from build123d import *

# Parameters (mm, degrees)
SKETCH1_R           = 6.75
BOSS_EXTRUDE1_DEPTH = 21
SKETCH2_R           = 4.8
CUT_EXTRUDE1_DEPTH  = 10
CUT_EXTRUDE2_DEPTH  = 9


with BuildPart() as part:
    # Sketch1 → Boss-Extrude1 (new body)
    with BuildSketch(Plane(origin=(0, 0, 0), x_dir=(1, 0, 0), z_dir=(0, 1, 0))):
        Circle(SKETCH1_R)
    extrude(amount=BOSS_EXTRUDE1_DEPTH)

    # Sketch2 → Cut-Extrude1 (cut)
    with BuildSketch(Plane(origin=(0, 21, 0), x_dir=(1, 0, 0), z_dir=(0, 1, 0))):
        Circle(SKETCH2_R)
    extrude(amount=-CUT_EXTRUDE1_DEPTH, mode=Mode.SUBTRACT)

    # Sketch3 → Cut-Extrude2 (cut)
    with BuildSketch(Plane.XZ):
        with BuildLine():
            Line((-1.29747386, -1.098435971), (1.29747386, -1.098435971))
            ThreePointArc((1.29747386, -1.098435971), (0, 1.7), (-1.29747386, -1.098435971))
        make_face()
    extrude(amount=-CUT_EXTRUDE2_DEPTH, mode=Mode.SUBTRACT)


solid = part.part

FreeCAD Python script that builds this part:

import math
import FreeCAD as App
import Part
import Sketcher

V = App.Vector
Q = App.Units.Quantity

doc = App.newDocument("Part")
body = doc.addObject("PartDesign::Body", "Body")

sketch1 = body.newObject("Sketcher::SketchObject", "Sketch")
sketch1.AttachmentSupport = (doc.getObject("XZ_Plane"), [""])
sketch1.MapMode = "FlatFace"
sketch1.addGeometry(Part.Circle(V(0, 0, 0), V(0, 0, 1), 6.75), False)
sketch1.addConstraint([
    Sketcher.Constraint("Coincident", 0, 3, -1, 1),
    Sketcher.Constraint("Diameter", 0, Q("13.5 mm")),
])
pad1 = body.newObject("PartDesign::Pad", "Pad")
pad1.Profile = sketch1
pad1.Length = 21
pad1.Reversed = True

sketch2 = body.newObject("Sketcher::SketchObject", "Sketch001")
sketch2.AttachmentSupport = (doc.getObject("XZ_Plane"), [""])
sketch2.MapMode = "FlatFace"
sketch2.AttachmentOffset = App.Placement(V(0, 0, -21), App.Rotation())
sketch2.addGeometry(Part.Circle(V(0, 0, 0), V(0, 0, 1), 4.8), False)
sketch2.addConstraint([
    Sketcher.Constraint("Coincident", 0, 3, -1, 1),
    Sketcher.Constraint("Diameter", 0, Q("9.6 mm")),
])
pocket1 = body.newObject("PartDesign::Pocket", "Pocket")
pocket1.Profile = sketch2
pocket1.Length = 10
pocket1.Reversed = True

sketch3 = body.newObject("Sketcher::SketchObject", "Sketch002")
sketch3.AttachmentSupport = (doc.getObject("XZ_Plane"), [""])
sketch3.MapMode = "FlatFace"
sketch3.addGeometry([
    Part.LineSegment(V(-1.297474, -1.098436, 0), V(1.297474, -1.098436, 0)),
    Part.ArcOfCircle(Part.Circle(V(0, 0, 0), V(0, 0, 1), 1.7), math.radians(-40.251113), math.radians(220.251113)),
], False)
sketch3.addConstraint([
    Sketcher.Constraint("Coincident", 0, 1, 1, 2),
    Sketcher.Constraint("Coincident", 1, 1, 0, 2),
    Sketcher.Constraint("Horizontal", 0),
    Sketcher.Constraint("Coincident", 1, 3, -1, 1),
    Sketcher.Constraint("Radius", 1, Q("1.7 mm")),
    Sketcher.Constraint("DistanceX", 0, 1, 0, 2, Q("2.594948 mm")),
])
pocket2 = body.newObject("PartDesign::Pocket", "Pocket001")
pocket2.Profile = sketch3
pocket2.Length = 9

doc.recompute()
